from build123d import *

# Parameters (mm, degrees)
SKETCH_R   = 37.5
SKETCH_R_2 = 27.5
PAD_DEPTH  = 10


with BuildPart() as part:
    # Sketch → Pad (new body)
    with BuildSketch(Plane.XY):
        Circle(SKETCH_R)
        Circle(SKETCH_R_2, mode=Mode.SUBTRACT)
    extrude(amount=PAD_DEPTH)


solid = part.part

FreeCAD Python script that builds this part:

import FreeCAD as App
import Part
import Sketcher

doc = App.newDocument("Part")
body = doc.addObject("PartDesign::Body", "Body")

# Sketch on XY plane
sketch1 = body.newObject("Sketcher::SketchObject", "Sketch")
sketch1.AttachmentSupport = (doc.getObject("XY_Plane"), [""])
sketch1.MapMode = "FlatFace"
sketch1.addGeometry([
    Part.Circle(App.Vector(0, 0, 0), App.Vector(0, 0, 1), 38),
    Part.Circle(App.Vector(0, 0, 0), App.Vector(0, 0, 1), 28),
], False)
sketch1.addConstraint([
    Sketcher.Constraint("Coincident", 0, 3, -1, 1),
    Sketcher.Constraint("Coincident", 1, 3, -1, 1),
    Sketcher.Constraint("Diameter", 0, 75.0),
    Sketcher.Constraint("Diameter", 1, 55.0),
])
pad1 = body.newObject("PartDesign::Pad", "Pad")
pad1.Profile = sketch1
pad1.Length = 10

doc.recompute()
